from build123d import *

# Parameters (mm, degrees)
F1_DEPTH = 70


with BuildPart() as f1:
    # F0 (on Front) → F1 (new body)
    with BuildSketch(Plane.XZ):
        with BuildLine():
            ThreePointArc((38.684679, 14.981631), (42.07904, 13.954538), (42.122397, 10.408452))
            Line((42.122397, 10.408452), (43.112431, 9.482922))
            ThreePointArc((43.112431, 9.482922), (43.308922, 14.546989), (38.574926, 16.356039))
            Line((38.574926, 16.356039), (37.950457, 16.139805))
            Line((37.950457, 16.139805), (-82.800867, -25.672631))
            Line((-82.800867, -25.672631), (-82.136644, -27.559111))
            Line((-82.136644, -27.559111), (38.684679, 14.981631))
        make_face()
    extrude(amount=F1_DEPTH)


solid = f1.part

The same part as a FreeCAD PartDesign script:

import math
import FreeCAD as App
import Part
import Sketcher
from FreeCAD import Vector
Q = App.Units.Quantity

doc = App.newDocument("Part")
params = doc.addObject("Spreadsheet::Sheet", "Params")
for row, (alias, value) in enumerate([
    ("sketch1_radius", "3 mm"),
    ("sketch1_length", "2 mm"),
    ("pad1_length", "70 mm"),
], start=1):
    params.set(f"A{row}", alias)
    params.set(f"B{row}", "=" + value)
    params.setAlias(f"B{row}", alias)

body = doc.addObject("PartDesign::Body", "Body")

# Sketch on XZ plane
sketch1 = body.newObject("Sketcher::SketchObject", "Sketch")
sketch1.AttachmentSupport = (doc.getObject("XZ_Plane"), [""])
sketch1.MapMode = "FlatFace"
sketch1.addGeometry([
    Part.ArcOfCircle(Part.Circle(Vector(39.7, 12.2, 0), Vector(0, 0, 1), 3), math.radians(-36), math.radians(109)),  # 0
    Part.LineSegment(Vector(42.1, 10.4, 0), Vector(43.1, 9.5, 0)),  # 1
    Part.ArcOfCircle(Part.Circle(Vector(39.7, 12.2, 0), Vector(0, 0, 1), 4.3), math.radians(-38), math.radians(105)),  # 2
    Part.LineSegment(Vector(38.6, 16.4, 0), Vector(38, 16.1, 0)),  # 3
    Part.LineSegment(Vector(38, 16.1, 0), Vector(-82.8, -25.7, 0)),  # 4
    Part.LineSegment(Vector(-82.8, -25.7, 0), Vector(-82.1, -27.6, 0)),  # 5
    Part.LineSegment(Vector(-82.1, -27.6, 0), Vector(38.7, 15, 0)),  # 6
], False)
sketch1.addConstraint([
    Sketcher.Constraint("Coincident", 0, 1, 1, 1),
    Sketcher.Constraint("Coincident", 1, 2, 2, 1),
    Sketcher.Constraint("Coincident", 2, 2, 3, 1),
    Sketcher.Constraint("Coincident", 3, 2, 4, 1),
    Sketcher.Constraint("Coincident", 4, 2, 5, 1),
    Sketcher.Constraint("Coincident", 5, 2, 6, 1),
    Sketcher.Constraint("Tangent", 6, 2, 0, 2),
    Sketcher.Constraint("Coincident", 2, 3, 0, 3),
    Sketcher.Constraint("Parallel", 3, 4),
    Sketcher.Constraint("Perpendicular", 5, 6),
    Sketcher.Constraint("Radius", 0, Q("3 mm")),
    Sketcher.Constraint("Distance", 5, Q("2 mm")),
    Sketcher.Constraint("Radius", 2, Q("4.347198 mm")),
    Sketcher.Constraint("DistanceX", 5, 2, 3, 2, Q("120.087101 mm")),
    Sketcher.Constraint("Distance", 4, Q("127.78561 mm")),
    Sketcher.Constraint("Distance", 6, Q("128.091791 mm")),
    Sketcher.Constraint("DistanceY", -1, 1, 0, 3, Q("12.15191 mm")),
    Sketcher.Constraint("DistanceX", -1, 1, 1, 2, Q("43.112431 mm")),
    Sketcher.Constraint("DistanceY", -1, 1, 2, 2, Q("16.356039 mm")),
    Sketcher.Constraint("DistanceX", -1, 1, 6, 2, Q("38.684679 mm")),
    Sketcher.Constraint("DistanceY", 0, 1, 2, 3, Q("1.743458 mm")),
])
sketch1.setExpression("Constraints[10]", "Params.sketch1_radius")
sketch1.setExpression("Constraints[11]", "Params.sketch1_length")
pad1 = body.newObject("PartDesign::Pad", "Pad")
pad1.Profile = sketch1
pad1.setExpression("Length", "Params.pad1_length")

doc.recompute()
